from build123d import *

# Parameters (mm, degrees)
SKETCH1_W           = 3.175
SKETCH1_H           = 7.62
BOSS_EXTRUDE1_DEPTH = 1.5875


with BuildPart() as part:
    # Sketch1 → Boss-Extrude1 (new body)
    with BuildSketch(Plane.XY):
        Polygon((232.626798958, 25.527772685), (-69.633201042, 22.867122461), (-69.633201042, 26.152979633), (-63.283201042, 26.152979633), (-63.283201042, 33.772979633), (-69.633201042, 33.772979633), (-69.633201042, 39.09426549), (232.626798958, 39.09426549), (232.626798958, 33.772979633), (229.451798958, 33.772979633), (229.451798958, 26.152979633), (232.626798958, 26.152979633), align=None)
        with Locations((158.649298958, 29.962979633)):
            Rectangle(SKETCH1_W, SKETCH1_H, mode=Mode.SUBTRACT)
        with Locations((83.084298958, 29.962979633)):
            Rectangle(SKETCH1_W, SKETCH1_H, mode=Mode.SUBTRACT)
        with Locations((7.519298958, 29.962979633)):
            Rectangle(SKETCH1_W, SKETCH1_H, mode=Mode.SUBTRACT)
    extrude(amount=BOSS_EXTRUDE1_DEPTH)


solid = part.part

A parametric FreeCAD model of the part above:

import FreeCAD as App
import Part
import Sketcher

V = App.Vector
Q = App.Units.Quantity


def add_polygon(sketch, points):
    """Adds a closed chain of lines whose ends are joined by coincident constraints."""
    first, n = sketch.GeometryCount, len(points)
    for a, b in zip(points, points[1:] + points[:1]):
        sketch.addGeometry(Part.LineSegment(App.Vector(*a, 0), App.Vector(*b, 0)), False)
    for i in range(n):
        sketch.addConstraint(Sketcher.Constraint("Coincident", first + i, 2, first + (i + 1) % n, 1))

doc = App.newDocument("Part")
params = doc.addObject("Spreadsheet::Sheet", "Params")
for row, (alias, value) in enumerate([
    ("sketch1_width", "11.9 in"),
    ("sketch1_height", "0.3 in"),
    ("sketch1_width2", "0.25 in"),
    ("sketch1_width3", "0.125 in"),
    ("pad1_length", "0.0625 in"),
], start=1):
    params.set(f"A{row}", alias)
    params.set(f"B{row}", "=" + value)
    params.setAlias(f"B{row}", alias)

body = doc.addObject("PartDesign::Body", "Body")

sketch1 = doc.addObject("Sketcher::SketchObject", "Sketch")
body.addObject(sketch1)
sketch1.AttachmentSupport = (doc.XY_Plane, [""])
sketch1.MapMode = "FlatFace"
add_polygon(sketch1, [(-69.633201, 22.867122), (232.626799, 25.527773), (232.626799, 26.15298), (229.451799, 26.15298), (229.451799, 33.77298), (232.626799, 33.77298), (232.626799, 39.094265), (-69.633201, 39.094265), (-69.633201, 33.77298), (-63.283201, 33.77298), (-63.283201, 26.15298), (-69.633201, 26.15298)])
add_polygon(sketch1, [(157.061799, 26.15298), (157.061799, 33.77298), (160.236799, 33.77298), (160.236799, 26.15298)])
add_polygon(sketch1, [(81.496799, 26.15298), (81.496799, 33.77298), (84.671799, 33.77298), (84.671799, 26.15298)])
add_polygon(sketch1, [(5.931799, 26.15298), (5.931799, 33.77298), (9.106799, 33.77298), (9.106799, 26.15298)])
sketch1.addConstraint(Sketcher.Constraint("Vertical", 1))
sketch1.addConstraint(Sketcher.Constraint("Horizontal", 2))
sketch1.addConstraint(Sketcher.Constraint("Vertical", 3))
sketch1.addConstraint(Sketcher.Constraint("Horizontal", 4))
sketch1.addConstraint(Sketcher.Constraint("Vertical", 5))
sketch1.addConstraint(Sketcher.Constraint("Horizontal", 6))
sketch1.addConstraint(Sketcher.Constraint("Vertical", 7))
sketch1.addConstraint(Sketcher.Constraint("Horizontal", 8))
sketch1.addConstraint(Sketcher.Constraint("Vertical", 9))
sketch1.addConstraint(Sketcher.Constraint("Horizontal", 10))
sketch1.addConstraint(Sketcher.Constraint("Vertical", 11))
sketch1.addConstraint(Sketcher.Constraint("Vertical", 12))
sketch1.addConstraint(Sketcher.Constraint("Horizontal", 13))
sketch1.addConstraint(Sketcher.Constraint("Vertical", 14))
sketch1.addConstraint(Sketcher.Constraint("Horizontal", 15))
sketch1.addConstraint(Sketcher.Constraint("Vertical", 16))
sketch1.addConstraint(Sketcher.Constraint("Horizontal", 17))
sketch1.addConstraint(Sketcher.Constraint("Vertical", 18))
sketch1.addConstraint(Sketcher.Constraint("Horizontal", 19))
sketch1.addConstraint(Sketcher.Constraint("Vertical", 20))
sketch1.addConstraint(Sketcher.Constraint("Horizontal", 21))
sketch1.addConstraint(Sketcher.Constraint("Vertical", 22))
sketch1.addConstraint(Sketcher.Constraint("Horizontal", 23))
sketch1.addConstraint(Sketcher.Constraint("Horizontal", 4, 2, 7, 2))
sketch1.addConstraint(Sketcher.Constraint("Horizontal", 2, 2, 9, 2))
sketch1.addConstraint(Sketcher.Constraint("Horizontal", 8, 2, 12, 2))
sketch1.addConstraint(Sketcher.Constraint("Horizontal", 10, 2, 14, 2))
sketch1.addConstraint(Sketcher.Constraint("Horizontal", 13, 2, 16, 2))
sketch1.addConstraint(Sketcher.Constraint("Horizontal", 15, 2, 18, 2))
sketch1.addConstraint(Sketcher.Constraint("Horizontal", 17, 2, 20, 2))
sketch1.addConstraint(Sketcher.Constraint("Horizontal", 19, 2, 22, 2))
sketch1.addConstraint(Sketcher.Constraint("Vertical", 1, 2, 4, 2))
sketch1.addConstraint(Sketcher.Constraint("Vertical", 7, 2, 10, 2))
sketch1.addConstraint(Sketcher.Constraint("Equal", 4, 13))
sketch1.addConstraint(Sketcher.Constraint("Equal", 15, 17))
sketch1.addConstraint(Sketcher.Constraint("Equal", 19, 21))
sketch1.addConstraint(Sketcher.Constraint("DistanceX", 6, 2, 6, 1, Q("11.9 in")))
sketch1.addConstraint(Sketcher.Constraint("DistanceY", 3, 1, 3, 2, Q("0.3 in")))
sketch1.addConstraint(Sketcher.Constraint("DistanceX", 8, 1, 8, 2, Q("0.25 in")))
sketch1.addConstraint(Sketcher.Constraint("DistanceX", 16, 2, 13, 2, Q("3.1 in")))
sketch1.addConstraint(Sketcher.Constraint("DistanceX", 8, 2, 16, 2, Q("5.7 in")))
sketch1.addConstraint(Sketcher.Constraint("DistanceX", 2, 2, 2, 1, Q("0.125 in")))
sketch1.addConstraint(Sketcher.Constraint("DistanceX", 8, 2, 21, 2, Q("2.85 in")))
sketch1.addConstraint(Sketcher.Constraint("DistanceX", -1, 1, 0, 2, 232.626799))
sketch1.addConstraint(Sketcher.Constraint("Distance", 0, 302.27171))
sketch1.addConstraint(Sketcher.Constraint("DistanceY", 1, 1, 1, 2, 0.625207))
sketch1.addConstraint(Sketcher.Constraint("DistanceY", 5, 1, 5, 2, 5.321286))
sketch1.addConstraint(Sketcher.Constraint("DistanceY", -1, 1, 1, 2, 26.15298))
sketch1.setExpression("Constraints[60]", "Params.sketch1_width")
sketch1.setExpression("Constraints[61]", "Params.sketch1_height")
sketch1.setExpression("Constraints[62]", "Params.sketch1_width2")
sketch1.setExpression("Constraints[65]", "Params.sketch1_width3")
pad1 = doc.addObject("PartDesign::Pad", "Pad")
body.addObject(pad1)
pad1.Profile = sketch1
pad1.setExpression("Length", "Params.pad1_length")

doc.recompute()
